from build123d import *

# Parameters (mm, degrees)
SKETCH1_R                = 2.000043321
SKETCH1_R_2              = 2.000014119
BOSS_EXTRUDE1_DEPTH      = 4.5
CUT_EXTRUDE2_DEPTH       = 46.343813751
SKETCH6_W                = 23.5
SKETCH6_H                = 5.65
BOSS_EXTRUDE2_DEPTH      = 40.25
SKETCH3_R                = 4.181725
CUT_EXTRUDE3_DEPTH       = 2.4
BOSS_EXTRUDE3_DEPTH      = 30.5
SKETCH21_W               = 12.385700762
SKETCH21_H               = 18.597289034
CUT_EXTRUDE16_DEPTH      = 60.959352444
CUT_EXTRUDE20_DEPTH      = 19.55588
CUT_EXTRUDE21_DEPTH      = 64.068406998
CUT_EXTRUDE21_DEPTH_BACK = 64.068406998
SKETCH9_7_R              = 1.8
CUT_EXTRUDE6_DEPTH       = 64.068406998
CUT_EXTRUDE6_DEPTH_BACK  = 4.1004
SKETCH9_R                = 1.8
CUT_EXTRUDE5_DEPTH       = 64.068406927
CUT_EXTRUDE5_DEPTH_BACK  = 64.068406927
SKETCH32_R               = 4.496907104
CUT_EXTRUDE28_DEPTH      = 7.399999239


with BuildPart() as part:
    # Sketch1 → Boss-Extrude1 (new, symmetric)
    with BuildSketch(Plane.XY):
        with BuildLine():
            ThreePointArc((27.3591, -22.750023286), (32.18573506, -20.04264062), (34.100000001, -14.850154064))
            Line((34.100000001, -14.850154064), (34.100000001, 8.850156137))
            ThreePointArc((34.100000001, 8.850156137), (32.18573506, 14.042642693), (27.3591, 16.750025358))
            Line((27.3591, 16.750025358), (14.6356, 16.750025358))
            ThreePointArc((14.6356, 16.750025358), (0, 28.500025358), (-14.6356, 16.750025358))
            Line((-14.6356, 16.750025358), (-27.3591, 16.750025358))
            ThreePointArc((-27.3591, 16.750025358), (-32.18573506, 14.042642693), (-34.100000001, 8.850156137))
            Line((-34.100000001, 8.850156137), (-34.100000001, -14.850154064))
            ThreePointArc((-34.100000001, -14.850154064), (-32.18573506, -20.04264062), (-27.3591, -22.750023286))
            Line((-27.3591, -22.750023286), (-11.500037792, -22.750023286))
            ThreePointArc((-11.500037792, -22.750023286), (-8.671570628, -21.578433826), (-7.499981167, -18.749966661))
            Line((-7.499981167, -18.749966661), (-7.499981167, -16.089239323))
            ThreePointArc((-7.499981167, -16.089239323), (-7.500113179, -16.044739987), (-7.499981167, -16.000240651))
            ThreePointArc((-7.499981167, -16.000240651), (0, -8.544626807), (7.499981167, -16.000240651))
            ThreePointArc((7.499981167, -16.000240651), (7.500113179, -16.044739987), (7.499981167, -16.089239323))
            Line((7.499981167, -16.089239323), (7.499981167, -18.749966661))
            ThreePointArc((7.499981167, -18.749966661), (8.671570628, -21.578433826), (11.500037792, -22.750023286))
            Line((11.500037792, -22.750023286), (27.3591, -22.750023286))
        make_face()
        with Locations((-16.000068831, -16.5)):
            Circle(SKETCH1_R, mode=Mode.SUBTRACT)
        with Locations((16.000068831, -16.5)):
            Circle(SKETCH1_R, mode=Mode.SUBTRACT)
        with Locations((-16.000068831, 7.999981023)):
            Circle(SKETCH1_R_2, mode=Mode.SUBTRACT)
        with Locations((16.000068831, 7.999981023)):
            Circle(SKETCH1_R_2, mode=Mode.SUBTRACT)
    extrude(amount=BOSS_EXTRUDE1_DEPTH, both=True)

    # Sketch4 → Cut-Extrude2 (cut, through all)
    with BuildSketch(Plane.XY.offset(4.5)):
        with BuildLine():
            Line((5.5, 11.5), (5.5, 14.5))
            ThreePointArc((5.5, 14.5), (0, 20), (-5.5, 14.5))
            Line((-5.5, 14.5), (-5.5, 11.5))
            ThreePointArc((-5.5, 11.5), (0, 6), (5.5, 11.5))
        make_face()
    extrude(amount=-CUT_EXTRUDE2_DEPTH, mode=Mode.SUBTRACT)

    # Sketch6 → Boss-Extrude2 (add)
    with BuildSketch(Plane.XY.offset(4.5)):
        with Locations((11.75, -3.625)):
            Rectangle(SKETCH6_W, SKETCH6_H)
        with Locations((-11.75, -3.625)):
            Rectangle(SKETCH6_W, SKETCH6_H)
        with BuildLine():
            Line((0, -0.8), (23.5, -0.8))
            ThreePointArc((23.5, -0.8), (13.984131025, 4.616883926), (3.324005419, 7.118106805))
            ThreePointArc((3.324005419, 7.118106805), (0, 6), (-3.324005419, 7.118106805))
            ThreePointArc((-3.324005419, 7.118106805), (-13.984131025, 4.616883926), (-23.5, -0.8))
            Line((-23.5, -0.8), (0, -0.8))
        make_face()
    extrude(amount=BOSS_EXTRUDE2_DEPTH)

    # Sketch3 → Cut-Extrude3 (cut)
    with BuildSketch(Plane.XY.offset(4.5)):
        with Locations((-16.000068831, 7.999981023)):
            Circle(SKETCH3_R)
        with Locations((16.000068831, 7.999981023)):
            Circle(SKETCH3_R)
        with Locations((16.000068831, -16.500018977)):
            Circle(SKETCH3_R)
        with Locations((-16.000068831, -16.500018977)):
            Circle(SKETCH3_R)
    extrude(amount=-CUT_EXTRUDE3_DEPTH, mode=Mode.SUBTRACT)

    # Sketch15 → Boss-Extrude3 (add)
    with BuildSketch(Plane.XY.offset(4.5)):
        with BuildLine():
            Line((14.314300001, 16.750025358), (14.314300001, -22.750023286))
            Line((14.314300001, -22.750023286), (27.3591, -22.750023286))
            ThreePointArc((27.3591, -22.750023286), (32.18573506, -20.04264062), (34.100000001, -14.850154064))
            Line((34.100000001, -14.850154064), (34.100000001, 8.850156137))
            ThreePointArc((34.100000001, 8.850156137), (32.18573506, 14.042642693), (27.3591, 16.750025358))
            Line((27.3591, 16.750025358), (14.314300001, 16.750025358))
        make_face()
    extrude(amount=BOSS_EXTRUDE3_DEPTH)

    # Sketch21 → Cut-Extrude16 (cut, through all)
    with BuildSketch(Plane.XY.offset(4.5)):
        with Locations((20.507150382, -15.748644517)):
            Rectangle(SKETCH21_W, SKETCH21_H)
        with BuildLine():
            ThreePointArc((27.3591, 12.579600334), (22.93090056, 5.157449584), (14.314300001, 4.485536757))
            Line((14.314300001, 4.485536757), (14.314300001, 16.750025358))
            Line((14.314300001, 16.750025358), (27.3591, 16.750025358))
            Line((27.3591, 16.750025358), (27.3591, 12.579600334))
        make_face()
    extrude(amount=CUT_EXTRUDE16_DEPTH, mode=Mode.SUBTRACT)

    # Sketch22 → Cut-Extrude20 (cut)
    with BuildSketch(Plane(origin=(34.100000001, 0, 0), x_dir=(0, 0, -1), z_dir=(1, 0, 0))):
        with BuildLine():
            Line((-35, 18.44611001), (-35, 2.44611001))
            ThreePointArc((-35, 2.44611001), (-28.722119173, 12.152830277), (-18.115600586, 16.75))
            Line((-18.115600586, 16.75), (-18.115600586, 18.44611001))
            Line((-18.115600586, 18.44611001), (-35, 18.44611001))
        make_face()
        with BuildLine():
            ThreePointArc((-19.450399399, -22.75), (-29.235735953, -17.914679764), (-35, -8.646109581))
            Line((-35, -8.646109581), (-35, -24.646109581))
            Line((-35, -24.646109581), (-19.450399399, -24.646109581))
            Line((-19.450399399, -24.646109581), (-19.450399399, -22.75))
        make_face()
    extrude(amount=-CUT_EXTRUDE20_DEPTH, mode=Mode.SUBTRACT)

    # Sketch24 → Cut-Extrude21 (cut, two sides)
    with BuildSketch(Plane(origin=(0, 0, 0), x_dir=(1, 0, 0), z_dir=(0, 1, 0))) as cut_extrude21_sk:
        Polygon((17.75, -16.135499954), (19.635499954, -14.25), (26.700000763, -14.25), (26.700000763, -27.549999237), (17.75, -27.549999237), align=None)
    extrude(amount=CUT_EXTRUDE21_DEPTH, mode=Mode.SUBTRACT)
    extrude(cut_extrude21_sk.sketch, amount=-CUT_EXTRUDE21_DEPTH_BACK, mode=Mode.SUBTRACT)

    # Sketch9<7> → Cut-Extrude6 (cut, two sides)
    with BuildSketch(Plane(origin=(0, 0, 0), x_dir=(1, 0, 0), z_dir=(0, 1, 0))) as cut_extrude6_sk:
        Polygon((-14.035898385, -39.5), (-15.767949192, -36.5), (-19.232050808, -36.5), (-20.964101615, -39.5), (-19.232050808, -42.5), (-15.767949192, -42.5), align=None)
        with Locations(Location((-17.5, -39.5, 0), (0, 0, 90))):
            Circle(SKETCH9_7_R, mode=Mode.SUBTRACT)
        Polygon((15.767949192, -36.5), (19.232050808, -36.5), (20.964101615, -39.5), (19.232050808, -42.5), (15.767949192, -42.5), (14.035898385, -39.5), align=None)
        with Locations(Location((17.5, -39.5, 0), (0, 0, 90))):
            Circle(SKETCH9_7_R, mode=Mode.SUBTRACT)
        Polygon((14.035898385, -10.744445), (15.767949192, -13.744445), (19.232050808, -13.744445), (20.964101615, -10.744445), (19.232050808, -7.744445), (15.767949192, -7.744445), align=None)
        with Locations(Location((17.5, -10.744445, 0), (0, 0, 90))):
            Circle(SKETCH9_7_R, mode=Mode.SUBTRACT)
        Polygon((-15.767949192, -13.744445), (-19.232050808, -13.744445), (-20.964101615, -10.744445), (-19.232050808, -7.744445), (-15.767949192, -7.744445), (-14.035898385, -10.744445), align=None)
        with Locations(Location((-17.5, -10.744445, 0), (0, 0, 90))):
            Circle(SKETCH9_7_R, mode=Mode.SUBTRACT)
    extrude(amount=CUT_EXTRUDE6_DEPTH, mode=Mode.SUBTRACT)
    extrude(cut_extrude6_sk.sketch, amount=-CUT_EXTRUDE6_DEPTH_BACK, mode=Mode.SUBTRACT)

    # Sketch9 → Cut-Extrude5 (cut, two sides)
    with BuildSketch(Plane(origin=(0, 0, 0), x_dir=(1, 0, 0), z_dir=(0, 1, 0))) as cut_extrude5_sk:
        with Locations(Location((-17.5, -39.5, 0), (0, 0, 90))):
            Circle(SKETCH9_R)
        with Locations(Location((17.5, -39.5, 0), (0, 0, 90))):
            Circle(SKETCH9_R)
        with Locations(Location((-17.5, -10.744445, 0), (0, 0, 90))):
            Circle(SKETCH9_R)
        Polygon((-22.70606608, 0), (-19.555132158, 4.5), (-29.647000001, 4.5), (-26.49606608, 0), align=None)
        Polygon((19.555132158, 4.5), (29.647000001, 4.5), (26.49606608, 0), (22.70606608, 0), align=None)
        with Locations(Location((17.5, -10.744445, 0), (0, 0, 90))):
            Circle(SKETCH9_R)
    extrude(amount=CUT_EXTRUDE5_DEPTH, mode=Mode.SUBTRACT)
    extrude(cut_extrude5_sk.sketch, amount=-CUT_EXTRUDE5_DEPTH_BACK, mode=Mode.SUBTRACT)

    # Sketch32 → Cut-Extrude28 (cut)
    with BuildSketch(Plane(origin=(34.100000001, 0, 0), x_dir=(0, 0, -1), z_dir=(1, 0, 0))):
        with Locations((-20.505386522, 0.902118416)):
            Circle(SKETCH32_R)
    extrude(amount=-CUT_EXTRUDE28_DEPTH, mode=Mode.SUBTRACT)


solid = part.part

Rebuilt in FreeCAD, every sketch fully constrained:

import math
import FreeCAD as App
import Part
import Sketcher

V = App.Vector
Q = App.Units.Quantity


def add_polygon(sketch, points):
    """Adds a closed chain of lines whose ends are joined by coincident constraints."""
    first, n = sketch.GeometryCount, len(points)
    for a, b in zip(points, points[1:] + points[:1]):
        sketch.addGeometry(Part.LineSegment(App.Vector(*a, 0), App.Vector(*b, 0)), False)
    for i in range(n):
        sketch.addConstraint(Sketcher.Constraint("Coincident", first + i, 2, first + (i + 1) % n, 1))

doc = App.newDocument("Part")
body = doc.addObject("PartDesign::Body", "Body")

# Sketch on XY plane
sketch1 = body.newObject("Sketcher::SketchObject", "Sketch")
sketch1.AttachmentSupport = (doc.getObject("XY_Plane"), [""])
sketch1.MapMode = "FlatFace"
sketch1.addGeometry([
    Part.ArcOfCircle(Part.Circle(V(26.100499, -14.850154, 0), V(0, 0, 1), 7.999501), math.radians(-80.947763), math.radians(0)),  # 0
    Part.LineSegment(V(34.1, -14.850154, 0), V(34.1, 8.850156, 0)),  # 1
    Part.ArcOfCircle(Part.Circle(V(26.100499, 8.850156, 0), V(0, 0, 1), 7.999501), math.radians(0), math.radians(80.947763)),  # 2
    Part.LineSegment(V(27.3591, 16.750025, 0), V(14.6356, 16.750025, 0)),  # 3
    Part.ArcOfCircle(Part.Circle(V(0, 13.510098, 0), V(0, 0, 1), 14.989927), math.radians(12.482434), math.radians(167.517566)),  # 4
    Part.LineSegment(V(-14.6356, 16.750025, 0), V(-27.3591, 16.750025, 0)),  # 5
    Part.ArcOfCircle(Part.Circle(V(-26.100499, 8.850156, 0), V(0, 0, 1), 7.999501), math.radians(99.052237), math.radians(180)),  # 6
    Part.LineSegment(V(-34.1, 8.850156, 0), V(-34.1, -14.850154, 0)),  # 7
    Part.ArcOfCircle(Part.Circle(V(-26.100499, -14.850154, 0), V(0, 0, 1), 7.999501), math.radians(-180), math.radians(-99.052237)),  # 8
    Part.LineSegment(V(-27.3591, -22.750023, 0), V(-11.500038, -22.750023, 0)),  # 9
    Part.ArcOfCircle(Part.Circle(V(-11.500038, -18.749967, 0), V(0, 0, 1), 4.000057), math.radians(-90), math.radians(0)),  # 10
    Part.LineSegment(V(-7.499981, -18.749967, 0), V(-7.499981, -16.089239, 0)),  # 11
    Part.ArcOfCircle(Part.Circle(V(-0.000006, -16.04474, 0), V(0, 0, 1), 7.500107), math.radians(179.660053), math.radians(180.339947)),  # 12
    Part.ArcOfCircle(Part.Circle(V(0, -16.04474, 0), V(0, 0, 1), 7.500113), math.radians(0.339947), math.radians(179.660053)),  # 13
    Part.ArcOfCircle(Part.Circle(V(0.000006, -16.04474, 0), V(0, 0, 1), 7.500107), math.radians(-0.339947), math.radians(0.339947)),  # 14
    Part.LineSegment(V(7.499981, -16.089239, 0), V(7.499981, -18.749967, 0)),  # 15
    Part.ArcOfCircle(Part.Circle(V(11.500038, -18.749967, 0), V(0, 0, 1), 4.000057), math.radians(-180), math.radians(-90)),  # 16
    Part.LineSegment(V(11.500038, -22.750023, 0), V(27.3591, -22.750023, 0)),  # 17
    Part.Circle(V(-16.000069, -16.5, 0), V(0, 0, 1), 2.000043),  # 18
    Part.Circle(V(16.000069, -16.5, 0), V(0, 0, 1), 2.000043),  # 19
    Part.Circle(V(-16.000069, 7.999981, 0), V(0, 0, 1), 2.000014),  # 20
    Part.Circle(V(16.000069, 7.999981, 0), V(0, 0, 1), 2.000014),  # 21
], False)
sketch1.addConstraint([
    Sketcher.Constraint("Tangent", 0, 2, 1, 1),
    Sketcher.Constraint("Tangent", 1, 2, 2, 1),
    Sketcher.Constraint("Coincident", 2, 2, 3, 1),
    Sketcher.Constraint("Coincident", 3, 2, 4, 1),
    Sketcher.Constraint("Coincident", 4, 2, 5, 1),
    Sketcher.Constraint("Coincident", 5, 2, 6, 1),
    Sketcher.Constraint("Tangent", 6, 2, 7, 1),
    Sketcher.Constraint("Tangent", 7, 2, 8, 1),
    Sketcher.Constraint("Coincident", 8, 2, 9, 1),
    Sketcher.Constraint("Tangent", 9, 2, 10, 1),
    Sketcher.Constraint("Tangent", 10, 2, 11, 1),
    Sketcher.Constraint("Coincident", 11, 2, 12, 2),
    Sketcher.Constraint("Tangent", 12, 1, 13, 2),
    Sketcher.Constraint("Tangent", 13, 1, 14, 2),
    Sketcher.Constraint("Coincident", 14, 1, 15, 1),
    Sketcher.Constraint("Tangent", 15, 2, 16, 1),
    Sketcher.Constraint("Tangent", 16, 2, 17, 1),
    Sketcher.Constraint("Coincident", 17, 2, 0, 1),
    Sketcher.Constraint("Vertical", 1),
    Sketcher.Constraint("Horizontal", 3),
    Sketcher.Constraint("Horizontal", 5),
    Sketcher.Constraint("Vertical", 7),
    Sketcher.Constraint("Horizontal", 9),
    Sketcher.Constraint("Vertical", 11),
    Sketcher.Constraint("Vertical", 15),
    Sketcher.Constraint("Horizontal", 17),
    Sketcher.Constraint("Equal", 0, 2),
    Sketcher.Constraint("Equal", 2, 6),
    Sketcher.Constraint("Equal", 6, 8),
    Sketcher.Constraint("Equal", 12, 14),
    Sketcher.Constraint("Equal", 10, 16),
    Sketcher.Constraint("Equal", 18, 19),
    Sketcher.Constraint("Equal", 20, 21),
    Sketcher.Constraint("Symmetric", 2, 3, 6, 3, -2),
    Sketcher.Constraint("Symmetric", 10, 3, 16, 3, -2),
    Sketcher.Constraint("Symmetric", 18, 3, 19, 3, -2),
    Sketcher.Constraint("Symmetric", 20, 3, 21, 3, -2),
    Sketcher.Constraint("Symmetric", 3, 2, 4, 2, -2),
    Sketcher.Constraint("Symmetric", 12, 1, 13, 1, -2),
    Sketcher.Constraint("Horizontal", 0, 3, 8, 3),
    Sketcher.Constraint("Vertical", 18, 3, 20, 3),
    Sketcher.Constraint("Vertical", 5, 2, 8, 2),
    Sketcher.Constraint("Vertical", 11, 2, 12, 1),
    Sketcher.Constraint("DistanceY", 18, 3, -1, 1, Q("16.5 mm")),
    Sketcher.Constraint("DistanceX", -1, 1, 0, 2, Q("34.1 mm")),
    Sketcher.Constraint("Radius", 0, Q("7.999501 mm")),
    Sketcher.Constraint("Diameter", 20, Q("4.000028 mm")),
    Sketcher.Constraint("Diameter", 18, Q("4.000087 mm")),
    Sketcher.Constraint("DistanceX", 3, 2, 3, 1, Q("12.7235 mm")),
    Sketcher.Constraint("Radius", 4, Q("14.989927 mm")),
    Sketcher.Constraint("Radius", 10, Q("4.000057 mm")),
    Sketcher.Constraint("Radius", 12, Q("7.500107 mm")),
    Sketcher.Constraint("Radius", 13, Q("7.500113 mm")),
    Sketcher.Constraint("DistanceY", 11, 2, 12, 1, Q("0.088999 mm")),
    Sketcher.Constraint("DistanceY", 1, 1, 1, 2, Q("23.70031 mm")),
    Sketcher.Constraint("DistanceY", -1, 1, 4, 3, Q("13.510098 mm")),
    Sketcher.Constraint("DistanceX", -1, 1, 2, 2, Q("27.3591 mm")),
    Sketcher.Constraint("DistanceY", 11, 1, 11, 2, Q("2.660727 mm")),
    Sketcher.Constraint("DistanceX", 18, 3, -1, 1, Q("16.000069 mm")),
    Sketcher.Constraint("DistanceY", -1, 1, 20, 3, Q("7.999981 mm")),
])
pad1 = body.newObject("PartDesign::Pad", "Pad")
pad1.Profile = sketch1
pad1.Length = 9
pad1.Midplane = True

# Sketch on XY plane
sketch2 = body.newObject("Sketcher::SketchObject", "Sketch001")
sketch2.AttachmentSupport = (doc.getObject("XY_Plane"), [""])
sketch2.MapMode = "FlatFace"
sketch2.AttachmentOffset = App.Placement(V(0, 0, 4.5), App.Rotation())
sketch2.addGeometry([
    Part.LineSegment(V(5.5, 11.5, 0), V(5.5, 14.5, 0)),
    Part.ArcOfCircle(Part.Circle(V(0, 14.5, 0), V(0, 0, 1), 5.5), math.radians(0), math.radians(180)),
    Part.LineSegment(V(-5.5, 14.5, 0), V(-5.5, 11.5, 0)),
    Part.ArcOfCircle(Part.Circle(V(0, 11.5, 0), V(0, 0, 1), 5.5), math.radians(180), math.radians(360)),
], False)
sketch2.addConstraint([
    Sketcher.Constraint("Tangent", 0, 2, 1, 1),
    Sketcher.Constraint("Tangent", 1, 2, 2, 1),
    Sketcher.Constraint("Tangent", 2, 2, 3, 1),
    Sketcher.Constraint("Tangent", 3, 2, 0, 1),
    Sketcher.Constraint("Vertical", 0),
    Sketcher.Constraint("Vertical", 2),
    Sketcher.Constraint("PointOnObject", 1, 3, -2),
    Sketcher.Constraint("Radius", 1, Q("5.5 mm")),
    Sketcher.Constraint("DistanceY", 0, 1, 0, 2, Q("3 mm")),
    Sketcher.Constraint("DistanceY", -1, 1, 1, 3, Q("14.5 mm")),
])
pocket1 = body.newObject("PartDesign::Pocket", "Pocket")
pocket1.Profile = sketch2
pocket1.Type = "ThroughAll"

# Sketch on XY plane
sketch3 = body.newObject("Sketcher::SketchObject", "Sketch002")
sketch3.AttachmentSupport = (doc.getObject("XY_Plane"), [""])
sketch3.MapMode = "FlatFace"
sketch3.AttachmentOffset = App.Placement(V(0, 0, 4.5), App.Rotation())
sketch3.addGeometry([
    Part.LineSegment(V(23.5, -6.45, 0), V(23.5, -0.8, 0)),  # 0
    Part.ArcOfCircle(Part.Circle(V(0, -31.015845, 0), V(0, 0, 1), 38.278549), math.radians(52.126449), math.radians(85.018315)),  # 1
    Part.ArcOfCircle(Part.Circle(V(0, 11.5, 0), V(0, 0, 1), 5.5), math.radians(-127.183134), math.radians(-52.816866)),  # 2
    Part.ArcOfCircle(Part.Circle(V(0, -31.015845, 0), V(0, 0, 1), 38.278549), math.radians(94.981685), math.radians(127.873551)),  # 3
    Part.LineSegment(V(-23.5, -0.8, 0), V(-23.5, -6.45, 0)),  # 4
    Part.LineSegment(V(-23.5, -6.45, 0), V(23.5, -6.45, 0)),  # 5
], False)
sketch3.addConstraint([
    Sketcher.Constraint("Coincident", 0, 2, 1, 1),
    Sketcher.Constraint("Coincident", 1, 2, 2, 2),
    Sketcher.Constraint("Coincident", 2, 1, 3, 1),
    Sketcher.Constraint("Coincident", 3, 2, 4, 1),
    Sketcher.Constraint("Coincident", 4, 2, 5, 1),
    Sketcher.Constraint("Coincident", 5, 2, 0, 1),
    Sketcher.Constraint("Vertical", 0),
    Sketcher.Constraint("Vertical", 4),
    Sketcher.Constraint("Horizontal", 5),
    Sketcher.Constraint("Coincident", 3, 3, 1, 3),
    Sketcher.Constraint("Equal", 1, 3),
    Sketcher.Constraint("Symmetric", 1, 2, 2, 1, -2),
    Sketcher.Constraint("Horizontal", 0, 2, 3, 2),
    Sketcher.Constraint("Radius", 2, Q("5.5 mm")),
    Sketcher.Constraint("DistanceX", 5, 1, 5, 2, Q("47 mm")),
    Sketcher.Constraint("DistanceY", 0, 1, 0, 2, Q("5.65 mm")),
    Sketcher.Constraint("DistanceY", -1, 1, 2, 3, Q("11.5 mm")),
    Sketcher.Constraint("DistanceY", 0, 2, -1, 1, Q("0.8 mm")),
    Sketcher.Constraint("Radius", 1, Q("38.278549 mm")),
])
pad2 = body.newObject("PartDesign::Pad", "Pad001")
pad2.Profile = sketch3
pad2.Length = 40.25

# Sketch on XY plane
sketch4 = body.newObject("Sketcher::SketchObject", "Sketch003")
sketch4.AttachmentSupport = (doc.getObject("XY_Plane"), [""])
sketch4.MapMode = "FlatFace"
sketch4.AttachmentOffset = App.Placement(V(0, 0, 4.5), App.Rotation())
sketch4.addGeometry([
    Part.Circle(V(-16.000069, 7.999981, 0), V(0, 0, 1), 4.181725),
    Part.Circle(V(16.000069, 7.999981, 0), V(0, 0, 1), 4.181725),
    Part.Circle(V(16.000069, -16.500019, 0), V(0, 0, 1), 4.181725),
    Part.Circle(V(-16.000069, -16.500019, 0), V(0, 0, 1), 4.181725),
], False)
sketch4.addConstraint([
    Sketcher.Constraint("Equal", 0, 1),
    Sketcher.Constraint("Equal", 1, 2),
    Sketcher.Constraint("Equal", 2, 3),
    Sketcher.Constraint("Symmetric", 0, 3, 1, 3, -2),
    Sketcher.Constraint("Symmetric", 2, 3, 3, 3, -2),
    Sketcher.Constraint("Vertical", 1, 3, 2, 3),
    Sketcher.Constraint("DistanceY", 2, 3, 1, 3, Q("24.5 mm")),
    Sketcher.Constraint("Diameter", 0, Q("8.36345 mm")),
    Sketcher.Constraint("DistanceX", 0, 3, -1, 1, Q("16.000069 mm")),
    Sketcher.Constraint("DistanceY", -1, 1, 0, 3, Q("7.999981 mm")),
])
pocket2 = body.newObject("PartDesign::Pocket", "Pocket001")
pocket2.Profile = sketch4
pocket2.Length = 2.4

# Sketch on XY plane
sketch5 = body.newObject("Sketcher::SketchObject", "Sketch004")
sketch5.AttachmentSupport = (doc.getObject("XY_Plane"), [""])
sketch5.MapMode = "FlatFace"
sketch5.AttachmentOffset = App.Placement(V(0, 0, 4.5), App.Rotation())
sketch5.addGeometry([
    Part.LineSegment(V(14.3143, 16.750025, 0), V(14.3143, -22.750023, 0)),  # 0
    Part.LineSegment(V(14.3143, -22.750023, 0), V(27.3591, -22.750023, 0)),  # 1
    Part.ArcOfCircle(Part.Circle(V(26.100499, -14.850154, 0), V(0, 0, 1), 7.999501), math.radians(-80.947763), math.radians(0)),  # 2
    Part.LineSegment(V(34.1, -14.850154, 0), V(34.1, 8.850156, 0)),  # 3
    Part.ArcOfCircle(Part.Circle(V(26.100499, 8.850156, 0), V(0, 0, 1), 7.999501), math.radians(0), math.radians(80.947763)),  # 4
    Part.LineSegment(V(27.3591, 16.750025, 0), V(14.3143, 16.750025, 0)),  # 5
], False)
sketch5.addConstraint([
    Sketcher.Constraint("Coincident", 0, 2, 1, 1),
    Sketcher.Constraint("Coincident", 1, 2, 2, 1),
    Sketcher.Constraint("Tangent", 2, 2, 3, 1),
    Sketcher.Constraint("Tangent", 3, 2, 4, 1),
    Sketcher.Constraint("Coincident", 4, 2, 5, 1),
    Sketcher.Constraint("Coincident", 5, 2, 0, 1),
    Sketcher.Constraint("Vertical", 0),
    Sketcher.Constraint("Horizontal", 1),
    Sketcher.Constraint("Vertical", 3),
    Sketcher.Constraint("Horizontal", 5),
    Sketcher.Constraint("Equal", 2, 4),
    Sketcher.Constraint("Vertical", 1, 2, 4, 2),
    Sketcher.Constraint("DistanceX", -1, 1, 2, 2, Q("34.1 mm")),
    Sketcher.Constraint("Radius", 2, Q("7.999501 mm")),
    Sketcher.Constraint("DistanceX", 1, 1, 1, 2, Q("13.0448 mm")),
    Sketcher.Constraint("DistanceY", 0, 2, 0, 1, Q("39.500049 mm")),
    Sketcher.Constraint("DistanceY", 3, 1, 3, 2, Q("23.70031 mm")),
    Sketcher.Constraint("DistanceY", 2, 3, -1, 1, Q("14.850154 mm")),
])
pad3 = body.newObject("PartDesign::Pad", "Pad002")
pad3.Profile = sketch5
pad3.Length = 30.5

# Sketch on XY plane
sketch6 = body.newObject("Sketcher::SketchObject", "Sketch005")
sketch6.AttachmentSupport = (doc.getObject("XY_Plane"), [""])
sketch6.MapMode = "FlatFace"
sketch6.AttachmentOffset = App.Placement(V(0, 0, 4.5), App.Rotation())
add_polygon(sketch6, [(14.3143, -6.45), (14.3143, -25.047289), (26.700001, -25.047289), (26.700001, -6.45)])  # lines 0-3
sketch6.addGeometry(Part.ArcOfCircle(Part.Circle(V(17.973366, 13.147261, 0), V(0, 0, 1), 9.402885), math.radians(-112.901182), math.radians(-3.461104)), False)  # 4
sketch6.addGeometry(Part.LineSegment(V(27.3591, 12.5796, 0), V(27.3591, 16.750025, 0)), False)  # 5
sketch6.addGeometry(Part.LineSegment(V(27.3591, 16.750025, 0), V(14.3143, 16.750025, 0)), False)  # 6
sketch6.addGeometry(Part.LineSegment(V(14.3143, 16.750025, 0), V(14.3143, 4.485537, 0)), False)  # 7
sketch6.addConstraint([
    Sketcher.Constraint("Coincident", 4, 2, 5, 1),
    Sketcher.Constraint("Coincident", 5, 2, 6, 1),
    Sketcher.Constraint("Coincident", 6, 2, 7, 1),
    Sketcher.Constraint("Coincident", 7, 2, 4, 1),
    Sketcher.Constraint("Vertical", 0),
    Sketcher.Constraint("Horizontal", 1),
    Sketcher.Constraint("Vertical", 2),
    Sketcher.Constraint("Horizontal", 3),
    Sketcher.Constraint("Vertical", 5),
    Sketcher.Constraint("Horizontal", 6),
    Sketcher.Constraint("Vertical", 7),
    Sketcher.Constraint("Vertical", 3, 2, 6, 2),
    Sketcher.Constraint("DistanceX", -1, 1, 1, 2, Q("26.700001 mm")),
    Sketcher.Constraint("DistanceY", 2, 2, -1, 1, Q("6.45 mm")),
    Sketcher.Constraint("DistanceX", 1, 1, 1, 2, Q("12.385701 mm")),
    Sketcher.Constraint("DistanceX", 6, 2, 6, 1, Q("13.0448 mm")),
    Sketcher.Constraint("Radius", 4, Q("9.402885 mm")),
    Sketcher.Constraint("DistanceY", 0, 2, 0, 1, Q("18.597289 mm")),
    Sketcher.Constraint("DistanceY", 7, 2, 7, 1, Q("12.264489 mm")),
    Sketcher.Constraint("DistanceY", -1, 1, 4, 2, Q("12.5796 mm")),
    Sketcher.Constraint("DistanceY", 5, 1, 5, 2, Q("4.170425 mm")),
])
pocket3 = body.newObject("PartDesign::Pocket", "Pocket002")
pocket3.Profile = sketch6
pocket3.Type = "ThroughAll"
pocket3.Reversed = True

# Sketch on YZ plane
sketch7 = body.newObject("Sketcher::SketchObject", "Sketch006")
sketch7.AttachmentSupport = (doc.getObject("YZ_Plane"), [""])
sketch7.MapMode = "FlatFace"
sketch7.AttachmentOffset = App.Placement(V(0, 0, 34.1), App.Rotation())
sketch7.addGeometry([
    Part.LineSegment(V(18.44611, 35, 0), V(2.44611, 35, 0)),  # 0
    Part.ArcOfCircle(Part.Circle(V(-3.073091, 15.823236, 0), V(0, 0, 1), 19.955196), math.radians(6.596449), math.radians(73.943828)),  # 1
    Part.LineSegment(V(16.75, 18.115601, 0), V(18.44611, 18.115601, 0)),  # 2
    Part.LineSegment(V(18.44611, 18.115601, 0), V(18.44611, 35, 0)),  # 3
    Part.ArcOfCircle(Part.Circle(V(-3.171332, 15.863138, 0), V(0, 0, 1), 19.90459), math.radians(105.965055), math.radians(169.61726)),  # 4
    Part.LineSegment(V(-8.64611, 35, 0), V(-24.64611, 35, 0)),  # 5
    Part.LineSegment(V(-24.64611, 35, 0), V(-24.64611, 19.450399, 0)),  # 6
    Part.LineSegment(V(-24.64611, 19.450399, 0), V(-22.75, 19.450399, 0)),  # 7
], False)
sketch7.addConstraint([
    Sketcher.Constraint("Coincident", 0, 2, 1, 2),
    Sketcher.Constraint("Coincident", 1, 1, 2, 1),
    Sketcher.Constraint("Coincident", 2, 2, 3, 1),
    Sketcher.Constraint("Coincident", 3, 2, 0, 1),
    Sketcher.Constraint("Coincident", 4, 1, 5, 1),
    Sketcher.Constraint("Coincident", 5, 2, 6, 1),
    Sketcher.Constraint("Coincident", 6, 2, 7, 1),
    Sketcher.Constraint("Coincident", 7, 2, 4, 2),
    Sketcher.Constraint("Horizontal", 0),
    Sketcher.Constraint("Horizontal", 2),
    Sketcher.Constraint("Vertical", 3),
    Sketcher.Constraint("Horizontal", 5),
    Sketcher.Constraint("Vertical", 6),
    Sketcher.Constraint("Horizontal", 7),
    Sketcher.Constraint("Horizontal", 3, 2, 4, 1),
    Sketcher.Constraint("Equal", 0, 5),
    Sketcher.Constraint("DistanceX", 0, 2, 0, 1, Q("16 mm")),
    Sketcher.Constraint("DistanceY", -1, 1, 0, 2, Q("35 mm")),
    Sketcher.Constraint("DistanceX", -1, 1, 1, 1, Q("16.75 mm")),
    Sketcher.Constraint("DistanceX", 7, 2, -1, 1, Q("22.75 mm")),
    Sketcher.Constraint("Radius", 4, Q("19.90459 mm")),
    Sketcher.Constraint("DistanceY", 3, 1, 3, 2, Q("16.884399 mm")),
    Sketcher.Constraint("DistanceY", 6, 2, 6, 1, Q("15.549601 mm")),
    Sketcher.Constraint("Radius", 1, Q("19.955196 mm")),
    Sketcher.Constraint("DistanceX", 2, 1, 2, 2, Q("1.69611 mm")),
    Sketcher.Constraint("DistanceX", 7, 1, 7, 2, Q("1.89611 mm")),
])
pocket4 = body.newObject("PartDesign::Pocket", "Pocket003")
pocket4.Profile = sketch7
pocket4.Length = 19.55588

# Sketch on XZ plane
sketch8 = body.newObject("Sketcher::SketchObject", "Sketch007")
sketch8.AttachmentSupport = (doc.getObject("XZ_Plane"), [""])
sketch8.MapMode = "FlatFace"
add_polygon(sketch8, [(19.6355, 14.25), (17.75, 16.1355), (17.75, 27.549999), (26.700001, 27.549999), (26.700001, 14.25)])  # lines 0-4
sketch8.addConstraint([
    Sketcher.Constraint("Vertical", 1),
    Sketcher.Constraint("Horizontal", 2),
    Sketcher.Constraint("Vertical", 3),
    Sketcher.Constraint("Horizontal", 4),
    Sketcher.Constraint("Angle", 0, Q("135 deg")),
    Sketcher.Constraint("DistanceY", 3, 2, 3, 1, Q("13.299999 mm")),
    Sketcher.Constraint("DistanceX", 2, 1, 2, 2, Q("8.950001 mm")),
    Sketcher.Constraint("DistanceX", -1, 1, 2, 2, Q("26.700001 mm")),
    Sketcher.Constraint("DistanceY", -1, 1, 1, 2, Q("27.549999 mm")),
    Sketcher.Constraint("DistanceX", 4, 2, 4, 1, Q("7.064501 mm")),
])
pocket5 = body.newObject("PartDesign::Pocket", "Pocket004")
pocket5.Profile = sketch8
pocket5.Type = "ThroughAll"
pocket5.Midplane = True

# Sketch on XZ plane
sketch9 = body.newObject("Sketcher::SketchObject", "Sketch008")
sketch9.AttachmentSupport = (doc.getObject("XZ_Plane"), [""])
sketch9.MapMode = "FlatFace"
add_polygon(sketch9, [(-14.035898, 39.5), (-15.767949, 36.5), (-19.232051, 36.5), (-20.964102, 39.5), (-19.232051, 42.5), (-15.767949, 42.5)])  # lines 0-5
sketch9.addGeometry(Part.Circle(V(-17.5, 39.5, 0), V(0, 0, 1), 1.8), False)  # 6
add_polygon(sketch9, [(19.232051, 36.5), (15.767949, 36.5), (14.035898, 39.5), (15.767949, 42.5), (19.232051, 42.5), (20.964102, 39.5)])  # lines 7-12
sketch9.addGeometry(Part.Circle(V(17.5, 39.5, 0), V(0, 0, 1), 1.8), False)  # 13
add_polygon(sketch9, [(14.035898, 10.744445), (15.767949, 13.744445), (19.232051, 13.744445), (20.964102, 10.744445), (19.232051, 7.744445), (15.767949, 7.744445)])  # lines 14-19
sketch9.addGeometry(Part.Circle(V(17.5, 10.744445, 0), V(0, 0, 1), 1.8), False)  # 20
add_polygon(sketch9, [(-19.232051, 13.744445), (-15.767949, 13.744445), (-14.035898, 10.744445), (-15.767949, 7.744445), (-19.232051, 7.744445), (-20.964102, 10.744445)])  # lines 21-26
sketch9.addGeometry(Part.Circle(V(-17.5, 10.744445, 0), V(0, 0, 1), 1.8), False)  # 27
sketch9.addConstraint([
    Sketcher.Constraint("Horizontal", 1),
    Sketcher.Constraint("Horizontal", 4),
    Sketcher.Constraint("Horizontal", 7),
    Sketcher.Constraint("Horizontal", 10),
    Sketcher.Constraint("Horizontal", 15),
    Sketcher.Constraint("Horizontal", 18),
    Sketcher.Constraint("Horizontal", 21),
    Sketcher.Constraint("Horizontal", 24),
    Sketcher.Constraint("Equal", 6, 13),
    Sketcher.Constraint("Equal", 13, 20),
    Sketcher.Constraint("Equal", 20, 27),
    Sketcher.Constraint("Symmetric", 6, 3, 13, 3, -2),
    Sketcher.Constraint("Symmetric", 20, 3, 27, 3, -2),
    Sketcher.Constraint("Symmetric", 0, 2, 7, 2, -2),
    Sketcher.Constraint("Symmetric", 5, 2, 8, 2, -2),
    Sketcher.Constraint("Symmetric", 4, 2, 9, 2, -2),
    Sketcher.Constraint("Symmetric", 2, 2, 11, 2, -2),
    Sketcher.Constraint("Symmetric", 14, 2, 21, 2, -2),
    Sketcher.Constraint("Symmetric", 19, 2, 22, 2, -2),
    Sketcher.Constraint("Symmetric", 18, 2, 23, 2, -2),
    Sketcher.Constraint("Symmetric", 16, 2, 25, 2, -2),
    Sketcher.Constraint("Parallel", 0, 3),
    Sketcher.Constraint("Parallel", 2, 5),
    Sketcher.Constraint("Parallel", 5, 8),
    Sketcher.Constraint("Parallel", 8, 11),
    Sketcher.Constraint("Parallel", 9, 12),
    Sketcher.Constraint("Parallel", 12, 14),
    Sketcher.Constraint("Parallel", 11, 16),
    Sketcher.Constraint("Parallel", 14, 17),
    Sketcher.Constraint("Parallel", 16, 19),
    Sketcher.Constraint("Parallel", 22, 25),
    Sketcher.Constraint("Parallel", 23, 26),
    Sketcher.Constraint("Horizontal", 13, 3, 2, 2),
    Sketcher.Constraint("Horizontal", 2, 2, 5, 2),
    Sketcher.Constraint("Horizontal", 27, 3, 16, 2),
    Sketcher.Constraint("Horizontal", 16, 2, 19, 2),
    Sketcher.Constraint("Vertical", 13, 3, 20, 3),
    Sketcher.Constraint("Vertical", 1, 2, 3, 2),
    Sketcher.Constraint("Vertical", 9, 2, 14, 2),
    Sketcher.Constraint("Vertical", 12, 2, 15, 2),
    Sketcher.Constraint("Vertical", 11, 2, 16, 2),
    Sketcher.Constraint("Vertical", 15, 2, 17, 2),
    Sketcher.Constraint("Diameter", 6, Q("3.6 mm")),
    Sketcher.Constraint("Angle", 0, Q("-120 deg")),
    Sketcher.Constraint("DistanceX", 6, 3, 13, 3, Q("35 mm")),
    Sketcher.Constraint("DistanceY", 0, 2, 6, 3, Q("3 mm")),
    Sketcher.Constraint("DistanceY", -1, 1, 6, 3, Q("39.5 mm")),
    Sketcher.Constraint("DistanceX", 1, 2, 1, 1, Q("3.464102 mm")),
    Sketcher.Constraint("DistanceX", 2, 2, -1, 1, Q("20.964102 mm")),
    Sketcher.Constraint("DistanceY", -1, 1, 20, 3, Q("10.744445 mm")),
])
pocket6 = body.newObject("PartDesign::Pocket", "Pocket005")
pocket6.Profile = sketch9
pocket6.Type = "TwoLengths"
pocket6.Length = 64.068407
pocket6.Length2 = 4.1004

# Sketch on XZ plane
sketch10 = body.newObject("Sketcher::SketchObject", "Sketch009")
sketch10.AttachmentSupport = (doc.getObject("XZ_Plane"), [""])
sketch10.MapMode = "FlatFace"
sketch10.addGeometry(Part.Circle(V(-17.5, 39.5, 0), V(0, 0, 1), 1.8), False)  # 0
sketch10.addGeometry(Part.Circle(V(17.5, 39.5, 0), V(0, 0, 1), 1.8), False)  # 1
sketch10.addGeometry(Part.Circle(V(-17.5, 10.744445, 0), V(0, 0, 1), 1.8), False)  # 2
add_polygon(sketch10, [(-22.706066, 0), (-19.555132, -4.5), (-29.647, -4.5), (-26.496066, 0)])  # lines 3-6
add_polygon(sketch10, [(29.647, -4.5), (19.555132, -4.5), (22.706066, 0), (26.496066, 0)])  # lines 7-10
sketch10.addGeometry(Part.Circle(V(17.5, 10.744445, 0), V(0, 0, 1), 1.8), False)  # 11
sketch10.addConstraint([
    Sketcher.Constraint("Horizontal", 4),
    Sketcher.Constraint("Horizontal", 6),
    Sketcher.Constraint("Horizontal", 7),
    Sketcher.Constraint("Horizontal", 9),
    Sketcher.Constraint("Equal", 0, 1),
    Sketcher.Constraint("Equal", 1, 2),
    Sketcher.Constraint("Equal", 2, 11),
    Sketcher.Constraint("Symmetric", 6, 2, 8, 2, -1, 1),
    Sketcher.Constraint("Symmetric", 0, 3, 1, 3, -2),
    Sketcher.Constraint("Symmetric", 2, 3, 11, 3, -2),
    Sketcher.Constraint("Symmetric", 3, 2, 7, 2, -2),
    Sketcher.Constraint("Symmetric", 5, 2, 9, 2, -2),
    Sketcher.Constraint("Parallel", 5, 8),
    Sketcher.Constraint("Parallel", 3, 10),
    Sketcher.Constraint("Vertical", 0, 3, 2, 3),
    Sketcher.Constraint("Diameter", 0, Q("3.6 mm")),
    Sketcher.Constraint("Angle", 3, Q("-55 deg")),
    Sketcher.Constraint("DistanceX", 0, 3, 1, 3, Q("35 mm")),
    Sketcher.Constraint("DistanceY", 3, 2, 0, 3, Q("44 mm")),
    Sketcher.Constraint("DistanceX", 6, 1, 6, 2, Q("3.79 mm")),
    Sketcher.Constraint("DistanceY", -1, 1, 0, 3, Q("39.5 mm")),
    Sketcher.Constraint("DistanceX", 4, 2, -1, 1, Q("29.647 mm")),
    Sketcher.Constraint("DistanceY", -1, 1, 2, 3, Q("10.744445 mm")),
])
pocket7 = body.newObject("PartDesign::Pocket", "Pocket006")
pocket7.Profile = sketch10
pocket7.Type = "ThroughAll"
pocket7.Midplane = True

# Sketch on YZ plane
sketch11 = body.newObject("Sketcher::SketchObject", "Sketch010")
sketch11.AttachmentSupport = (doc.getObject("YZ_Plane"), [""])
sketch11.MapMode = "FlatFace"
sketch11.AttachmentOffset = App.Placement(V(0, 0, 34.1), App.Rotation())
sketch11.addGeometry(Part.Circle(V(0.902118, 20.505387, 0), V(0, 0, 1), 4.496907), False)
sketch11.addConstraint([
    Sketcher.Constraint("Diameter", 0, Q("8.993814 mm")),
    Sketcher.Constraint("DistanceX", -1, 1, 0, 3, Q("0.902118 mm")),
    Sketcher.Constraint("DistanceY", -1, 1, 0, 3, Q("20.505387 mm")),
])
pocket8 = body.newObject("PartDesign::Pocket", "Pocket007")
pocket8.Profile = sketch11
pocket8.Length = 7.399999

doc.recompute()
